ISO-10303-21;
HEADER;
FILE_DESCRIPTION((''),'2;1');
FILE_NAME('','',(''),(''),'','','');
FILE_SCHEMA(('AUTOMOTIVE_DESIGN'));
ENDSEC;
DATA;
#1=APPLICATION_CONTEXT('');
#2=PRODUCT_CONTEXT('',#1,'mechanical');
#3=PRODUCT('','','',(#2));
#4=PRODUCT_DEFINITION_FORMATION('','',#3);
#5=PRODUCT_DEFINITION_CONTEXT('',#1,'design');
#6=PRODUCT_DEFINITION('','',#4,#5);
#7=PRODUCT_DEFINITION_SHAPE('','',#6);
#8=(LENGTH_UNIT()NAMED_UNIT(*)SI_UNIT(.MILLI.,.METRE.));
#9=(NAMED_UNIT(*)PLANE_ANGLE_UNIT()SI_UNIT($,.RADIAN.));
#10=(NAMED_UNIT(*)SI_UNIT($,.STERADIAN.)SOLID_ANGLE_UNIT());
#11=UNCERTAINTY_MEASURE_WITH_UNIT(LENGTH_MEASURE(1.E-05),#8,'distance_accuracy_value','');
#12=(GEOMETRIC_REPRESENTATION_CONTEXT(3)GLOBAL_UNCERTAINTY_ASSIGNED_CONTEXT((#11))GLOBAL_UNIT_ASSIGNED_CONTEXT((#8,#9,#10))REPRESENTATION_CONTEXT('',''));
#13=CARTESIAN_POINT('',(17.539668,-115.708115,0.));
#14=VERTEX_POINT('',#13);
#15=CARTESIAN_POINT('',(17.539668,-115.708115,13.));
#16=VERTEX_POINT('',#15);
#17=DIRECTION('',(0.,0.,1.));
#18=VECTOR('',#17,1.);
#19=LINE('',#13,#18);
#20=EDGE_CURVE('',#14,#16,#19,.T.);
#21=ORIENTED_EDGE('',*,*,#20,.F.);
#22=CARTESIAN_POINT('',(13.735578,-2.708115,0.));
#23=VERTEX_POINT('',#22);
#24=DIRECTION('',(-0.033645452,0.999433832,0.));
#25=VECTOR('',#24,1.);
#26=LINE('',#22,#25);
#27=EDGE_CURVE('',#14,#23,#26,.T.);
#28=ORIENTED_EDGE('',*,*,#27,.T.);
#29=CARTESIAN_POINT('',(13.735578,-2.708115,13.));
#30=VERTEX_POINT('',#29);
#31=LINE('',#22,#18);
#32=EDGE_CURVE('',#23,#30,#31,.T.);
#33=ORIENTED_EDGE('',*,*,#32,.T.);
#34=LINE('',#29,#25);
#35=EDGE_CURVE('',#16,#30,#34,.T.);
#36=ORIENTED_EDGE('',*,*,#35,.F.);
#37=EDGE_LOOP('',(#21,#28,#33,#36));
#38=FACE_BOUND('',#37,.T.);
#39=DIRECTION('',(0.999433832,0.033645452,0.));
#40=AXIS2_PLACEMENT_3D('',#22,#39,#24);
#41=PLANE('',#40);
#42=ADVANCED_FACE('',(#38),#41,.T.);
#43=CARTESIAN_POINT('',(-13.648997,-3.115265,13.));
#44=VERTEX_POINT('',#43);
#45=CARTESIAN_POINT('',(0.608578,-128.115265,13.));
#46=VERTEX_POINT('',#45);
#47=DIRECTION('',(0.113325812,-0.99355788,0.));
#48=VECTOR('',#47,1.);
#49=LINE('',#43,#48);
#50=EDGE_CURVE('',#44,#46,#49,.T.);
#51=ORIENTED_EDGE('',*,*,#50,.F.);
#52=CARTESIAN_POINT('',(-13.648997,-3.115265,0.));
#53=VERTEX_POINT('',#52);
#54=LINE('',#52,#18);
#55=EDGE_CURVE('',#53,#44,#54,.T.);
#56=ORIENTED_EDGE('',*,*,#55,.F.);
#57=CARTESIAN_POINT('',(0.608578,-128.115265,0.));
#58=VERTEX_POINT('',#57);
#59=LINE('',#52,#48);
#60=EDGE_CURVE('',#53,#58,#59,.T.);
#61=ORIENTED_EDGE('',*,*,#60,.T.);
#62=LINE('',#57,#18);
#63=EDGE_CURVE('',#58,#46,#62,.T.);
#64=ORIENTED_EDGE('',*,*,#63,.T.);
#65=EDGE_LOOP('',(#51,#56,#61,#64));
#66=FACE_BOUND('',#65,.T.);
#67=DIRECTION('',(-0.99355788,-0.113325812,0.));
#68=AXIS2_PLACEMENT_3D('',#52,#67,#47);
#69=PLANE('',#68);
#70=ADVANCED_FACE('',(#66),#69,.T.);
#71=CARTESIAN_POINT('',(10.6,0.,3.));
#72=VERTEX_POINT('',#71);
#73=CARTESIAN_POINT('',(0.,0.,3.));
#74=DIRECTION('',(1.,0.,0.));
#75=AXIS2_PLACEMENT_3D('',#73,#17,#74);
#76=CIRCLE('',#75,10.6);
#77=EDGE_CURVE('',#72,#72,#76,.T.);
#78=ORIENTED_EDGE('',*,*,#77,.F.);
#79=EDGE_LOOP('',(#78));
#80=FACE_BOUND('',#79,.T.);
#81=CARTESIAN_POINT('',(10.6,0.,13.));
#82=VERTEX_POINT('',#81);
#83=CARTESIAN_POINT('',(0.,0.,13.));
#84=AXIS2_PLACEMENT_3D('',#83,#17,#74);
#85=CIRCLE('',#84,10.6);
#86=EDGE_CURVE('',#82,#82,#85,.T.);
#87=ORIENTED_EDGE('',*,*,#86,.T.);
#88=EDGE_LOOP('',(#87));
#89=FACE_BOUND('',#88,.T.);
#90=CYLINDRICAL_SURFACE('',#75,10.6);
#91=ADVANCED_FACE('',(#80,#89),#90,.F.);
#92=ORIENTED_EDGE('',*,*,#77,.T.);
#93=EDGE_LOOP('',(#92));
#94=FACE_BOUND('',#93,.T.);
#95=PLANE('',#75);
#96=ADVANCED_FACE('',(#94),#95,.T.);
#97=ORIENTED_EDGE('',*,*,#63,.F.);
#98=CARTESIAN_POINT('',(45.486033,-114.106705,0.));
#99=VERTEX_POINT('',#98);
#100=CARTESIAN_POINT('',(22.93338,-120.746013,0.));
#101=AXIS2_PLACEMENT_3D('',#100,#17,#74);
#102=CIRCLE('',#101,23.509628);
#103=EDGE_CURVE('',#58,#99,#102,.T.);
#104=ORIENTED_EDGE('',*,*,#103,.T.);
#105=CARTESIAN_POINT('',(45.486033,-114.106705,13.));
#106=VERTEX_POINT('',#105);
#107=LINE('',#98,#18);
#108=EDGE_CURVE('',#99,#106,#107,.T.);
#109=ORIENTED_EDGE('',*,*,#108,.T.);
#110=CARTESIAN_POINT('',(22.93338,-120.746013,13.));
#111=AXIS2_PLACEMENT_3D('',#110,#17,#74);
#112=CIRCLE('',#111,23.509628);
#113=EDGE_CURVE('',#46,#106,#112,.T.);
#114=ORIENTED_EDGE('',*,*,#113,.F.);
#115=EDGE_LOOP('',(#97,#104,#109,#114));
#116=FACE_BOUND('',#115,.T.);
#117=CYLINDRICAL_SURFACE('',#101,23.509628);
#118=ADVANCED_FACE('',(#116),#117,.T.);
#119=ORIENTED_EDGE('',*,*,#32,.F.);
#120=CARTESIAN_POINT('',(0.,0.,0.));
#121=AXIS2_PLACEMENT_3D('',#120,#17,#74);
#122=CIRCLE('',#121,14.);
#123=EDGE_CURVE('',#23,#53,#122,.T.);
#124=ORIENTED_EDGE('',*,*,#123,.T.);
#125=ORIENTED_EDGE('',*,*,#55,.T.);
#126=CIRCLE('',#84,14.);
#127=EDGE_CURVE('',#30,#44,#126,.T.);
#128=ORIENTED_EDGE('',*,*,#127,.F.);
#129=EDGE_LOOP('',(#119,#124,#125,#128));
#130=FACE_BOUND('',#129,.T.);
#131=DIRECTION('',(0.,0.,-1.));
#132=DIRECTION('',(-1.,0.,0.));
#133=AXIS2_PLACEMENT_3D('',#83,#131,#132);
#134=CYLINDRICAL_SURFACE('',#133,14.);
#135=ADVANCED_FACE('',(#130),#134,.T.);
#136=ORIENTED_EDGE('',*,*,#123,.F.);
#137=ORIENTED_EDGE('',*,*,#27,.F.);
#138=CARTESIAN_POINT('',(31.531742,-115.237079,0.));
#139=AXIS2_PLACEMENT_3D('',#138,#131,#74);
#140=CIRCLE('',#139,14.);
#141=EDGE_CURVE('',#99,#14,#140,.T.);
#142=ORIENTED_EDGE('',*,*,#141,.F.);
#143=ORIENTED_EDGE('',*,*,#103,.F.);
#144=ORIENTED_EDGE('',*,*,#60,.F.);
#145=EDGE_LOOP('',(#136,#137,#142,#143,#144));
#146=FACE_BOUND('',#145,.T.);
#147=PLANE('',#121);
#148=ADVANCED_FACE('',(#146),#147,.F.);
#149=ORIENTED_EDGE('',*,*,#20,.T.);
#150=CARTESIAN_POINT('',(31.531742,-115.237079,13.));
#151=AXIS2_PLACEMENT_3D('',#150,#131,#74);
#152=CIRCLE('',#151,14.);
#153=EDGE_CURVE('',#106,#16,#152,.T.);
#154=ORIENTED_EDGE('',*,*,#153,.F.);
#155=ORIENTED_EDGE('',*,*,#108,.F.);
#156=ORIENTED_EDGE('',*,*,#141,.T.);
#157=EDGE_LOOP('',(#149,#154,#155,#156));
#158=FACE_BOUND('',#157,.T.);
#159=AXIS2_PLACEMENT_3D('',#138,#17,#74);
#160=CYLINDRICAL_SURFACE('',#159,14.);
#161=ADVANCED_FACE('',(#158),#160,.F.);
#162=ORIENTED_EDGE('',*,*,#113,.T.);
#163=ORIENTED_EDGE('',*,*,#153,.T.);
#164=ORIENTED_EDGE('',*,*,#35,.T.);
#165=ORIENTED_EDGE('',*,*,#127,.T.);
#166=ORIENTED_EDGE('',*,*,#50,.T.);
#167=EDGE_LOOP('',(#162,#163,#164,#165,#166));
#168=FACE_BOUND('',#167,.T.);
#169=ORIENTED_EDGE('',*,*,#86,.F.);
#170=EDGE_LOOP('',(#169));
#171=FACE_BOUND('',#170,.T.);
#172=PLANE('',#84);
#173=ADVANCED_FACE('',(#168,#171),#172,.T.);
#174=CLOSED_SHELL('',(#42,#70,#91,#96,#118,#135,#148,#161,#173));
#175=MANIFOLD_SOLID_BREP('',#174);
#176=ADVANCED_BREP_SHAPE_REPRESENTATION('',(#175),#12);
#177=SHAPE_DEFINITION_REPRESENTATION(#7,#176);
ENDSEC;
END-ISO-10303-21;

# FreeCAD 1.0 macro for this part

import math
import FreeCAD as App
import Part
import Sketcher

doc = App.newDocument("Part")
body = doc.addObject("PartDesign::Body", "Body")

sketch1 = body.newObject("Sketcher::SketchObject", "Sketch")
sketch1.AttachmentSupport = (doc.getObject("XY_Plane"), [""])
sketch1.MapMode = "FlatFace"
sketch1.addGeometry(Part.Circle(App.Vector(0, 0, 0), App.Vector(0, 0, 1), 14), False)
sketch1.addConstraint([
    Sketcher.Constraint("Coincident", 0, 3, -1, 1),
    Sketcher.Constraint("Diameter", 0, 28.0),
])
pad1 = body.newObject("PartDesign::Pad", "Pad")
pad1.Profile = sketch1
pad1.Length = 13

sketch2 = body.newObject("Sketcher::SketchObject", "Sketch001")
sketch2.AttachmentSupport = (doc.getObject("XY_Plane"), [""])
sketch2.MapMode = "FlatFace"
sketch2.AttachmentOffset = App.Placement(App.Vector(0, 0, 13), App.Rotation())
sketch2.addGeometry(Part.Circle(App.Vector(0, 0, 0), App.Vector(0, 0, 1), 4), False)
sketch2.addConstraint([
    Sketcher.Constraint("Coincident", 0, 3, -1, 1),
    Sketcher.Constraint("Diameter", 0, 8.0),
])
pocket1 = body.newObject("PartDesign::Pocket", "Pocket")
pocket1.Profile = sketch2
pocket1.Length = 10

sketch3 = body.newObject("Sketcher::SketchObject", "Sketch002")
sketch3.AttachmentSupport = (doc.getObject("XY_Plane"), [""])
sketch3.MapMode = "FlatFace"
sketch3.addGeometry([
    Part.LineSegment(App.Vector(18, -116, 0), App.Vector(14, -3, 0)),
    Part.ArcOfCircle(Part.Circle(App.Vector(0, 0, 0), App.Vector(0, 0, 1), 14), math.radians(-167), math.radians(-11)),
    Part.LineSegment(App.Vector(-14, -3, 0), App.Vector(1, -128, 0)),
    Part.ArcOfCircle(Part.Circle(App.Vector(23, -121, 0), App.Vector(0, 0, 1), 24), math.radians(-162), math.radians(16)),
    Part.ArcOfCircle(Part.Circle(App.Vector(32, -115, 0), App.Vector(0, 0, 1), 14), math.radians(-178), math.radians(5)),
], False)
sketch3.addConstraint([
    Sketcher.Constraint("Coincident", 0, 2, 1, 2),
    Sketcher.Constraint("Coincident", 1, 1, 2, 1),
    Sketcher.Constraint("Coincident", 2, 2, 3, 1),
    Sketcher.Constraint("Coincident", 3, 2, 4, 2),
    Sketcher.Constraint("Tangent", 4, 1, 0, 1),
    Sketcher.Constraint("Coincident", 1, 3, -1, 1),
    Sketcher.Constraint("Equal", 1, 4),
    Sketcher.Constraint("Radius", 1, 14.0),
    Sketcher.Constraint("DistanceY", 2, 2, 1, 1, 125.0),
    Sketcher.Constraint("DistanceY", 4, 1, 0, 2, 113.0),
    Sketcher.Constraint("Radius", 3, 23.509628),
    Sketcher.Constraint("DistanceX", 2, 2, 0, 2, 13.127),
    Sketcher.Constraint("DistanceX", 0, 2, 3, 3, 9.197801),
    Sketcher.Constraint("DistanceY", 3, 3, 0, 2, 118.037898),
    Sketcher.Constraint("DistanceX", -1, 1, 3, 3, 22.93338),
    Sketcher.Constraint("DistanceX", -1, 1, 4, 3, 31.531742),
])
pad2 = body.newObject("PartDesign::Pad", "Pad001")
pad2.Profile = sketch3
pad2.Length = 13

sketch4 = body.newObject("Sketcher::SketchObject", "Sketch003")
sketch4.AttachmentSupport = (doc.getObject("XY_Plane"), [""])
sketch4.MapMode = "FlatFace"
sketch4.AttachmentOffset = App.Placement(App.Vector(0, 0, 13), App.Rotation())
sketch4.addGeometry(Part.Circle(App.Vector(0, 0, 0), App.Vector(0, 0, 1), 11), False)
sketch4.addConstraint([
    Sketcher.Constraint("Coincident", 0, 3, -1, 1),
    Sketcher.Constraint("Diameter", 0, 21.2),
])
pocket2 = body.newObject("PartDesign::Pocket", "Pocket001")
pocket2.Profile = sketch4
pocket2.Length = 10

doc.recompute()
